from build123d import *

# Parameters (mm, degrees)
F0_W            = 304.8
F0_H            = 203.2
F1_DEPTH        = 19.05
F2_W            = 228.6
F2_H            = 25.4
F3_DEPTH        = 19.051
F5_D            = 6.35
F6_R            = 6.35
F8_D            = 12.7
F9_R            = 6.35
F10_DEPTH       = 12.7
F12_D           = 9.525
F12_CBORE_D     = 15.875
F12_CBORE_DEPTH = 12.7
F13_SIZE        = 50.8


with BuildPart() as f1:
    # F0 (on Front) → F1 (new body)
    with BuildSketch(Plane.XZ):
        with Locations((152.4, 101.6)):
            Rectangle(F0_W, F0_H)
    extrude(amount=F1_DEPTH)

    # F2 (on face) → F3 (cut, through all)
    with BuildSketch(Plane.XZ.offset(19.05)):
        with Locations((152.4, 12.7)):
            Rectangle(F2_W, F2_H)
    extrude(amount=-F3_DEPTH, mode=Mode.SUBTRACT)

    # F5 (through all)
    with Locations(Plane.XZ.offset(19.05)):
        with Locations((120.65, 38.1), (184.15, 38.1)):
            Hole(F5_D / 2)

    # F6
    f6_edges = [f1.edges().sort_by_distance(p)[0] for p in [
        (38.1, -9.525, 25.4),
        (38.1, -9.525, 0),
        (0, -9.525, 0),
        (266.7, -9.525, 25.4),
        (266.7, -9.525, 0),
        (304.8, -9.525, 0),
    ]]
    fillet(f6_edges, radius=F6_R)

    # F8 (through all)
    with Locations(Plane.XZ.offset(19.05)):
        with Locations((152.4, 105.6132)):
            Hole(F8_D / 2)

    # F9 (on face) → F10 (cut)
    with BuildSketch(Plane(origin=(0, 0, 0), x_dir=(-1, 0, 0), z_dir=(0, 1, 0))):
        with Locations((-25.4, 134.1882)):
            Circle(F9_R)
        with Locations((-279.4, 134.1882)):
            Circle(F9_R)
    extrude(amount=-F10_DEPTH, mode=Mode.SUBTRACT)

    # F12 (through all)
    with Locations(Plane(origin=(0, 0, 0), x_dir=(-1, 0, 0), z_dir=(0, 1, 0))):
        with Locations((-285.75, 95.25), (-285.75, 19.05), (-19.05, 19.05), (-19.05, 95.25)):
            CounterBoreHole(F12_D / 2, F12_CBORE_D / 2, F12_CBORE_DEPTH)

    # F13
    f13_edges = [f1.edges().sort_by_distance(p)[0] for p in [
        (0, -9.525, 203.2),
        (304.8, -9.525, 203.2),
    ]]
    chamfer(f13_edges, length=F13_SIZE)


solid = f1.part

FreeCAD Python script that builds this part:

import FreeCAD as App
import Part
import Sketcher
Q = App.Units.Quantity


def edges_at(feature, points):
    """Names of the edges that pass closest to the given points."""
    edges = feature.Shape.Edges
    near = lambda p: min(range(len(edges)), key=lambda i: edges[i].distToShape(Part.Vertex(*p))[0])
    return sorted({f"Edge{near(p) + 1}" for p in points})

doc = App.newDocument("Part")
body = doc.addObject("PartDesign::Body", "Body")

sketch1 = body.newObject("Sketcher::SketchObject", "Sketch")
sketch1.AttachmentSupport = (doc.getObject("XZ_Plane"), [""])
sketch1.MapMode = "FlatFace"
sketch1.addGeometry(Part.LineSegment(App.Vector(0, 203.2, 0), App.Vector(0, 0, 0)), False)
sketch1.addGeometry(Part.LineSegment(App.Vector(0, 0, 0), App.Vector(304.8, 0, 0)), False)
sketch1.addGeometry(Part.LineSegment(App.Vector(304.8, 0, 0), App.Vector(304.8, 203.2, 0)), False)
sketch1.addGeometry(Part.LineSegment(App.Vector(304.8, 203.2, 0), App.Vector(0, 203.2, 0)), False)
sketch1.addConstraint(Sketcher.Constraint("Coincident", 0, 2, 1, 1))
sketch1.addConstraint(Sketcher.Constraint("Coincident", 1, 2, 2, 1))
sketch1.addConstraint(Sketcher.Constraint("Coincident", 2, 2, 3, 1))
sketch1.addConstraint(Sketcher.Constraint("Coincident", 3, 2, 0, 1))
sketch1.addConstraint(Sketcher.Constraint("Vertical", 0))
sketch1.addConstraint(Sketcher.Constraint("Horizontal", 1))
sketch1.addConstraint(Sketcher.Constraint("Vertical", 2))
sketch1.addConstraint(Sketcher.Constraint("Horizontal", 3))
sketch1.addConstraint(Sketcher.Constraint("Coincident", 0, 2, -1, 1))
sketch1.addConstraint(Sketcher.Constraint("DistanceX", 1, 1, 1, 2, Q("12 in")))
sketch1.addConstraint(Sketcher.Constraint("DistanceY", 0, 2, 0, 1, Q("8 in")))
pad1 = body.newObject("PartDesign::Pad", "Pad")
pad1.Profile = sketch1
pad1.Length = Q("0.75 in")

sketch2 = body.newObject("Sketcher::SketchObject", "Sketch001")
sketch2.AttachmentSupport = (doc.getObject("XZ_Plane"), [""])
sketch2.MapMode = "FlatFace"
sketch2.AttachmentOffset = App.Placement(App.Vector(0, 0, 0.75 * 25.4), App.Rotation())
sketch2.addGeometry(Part.LineSegment(App.Vector(38.1, 25.4, 0), App.Vector(38.1, 0, 0)), False)
sketch2.addGeometry(Part.LineSegment(App.Vector(38.1, 0, 0), App.Vector(266.7, 0, 0)), False)
sketch2.addGeometry(Part.LineSegment(App.Vector(266.7, 0, 0), App.Vector(266.7, 25.4, 0)), False)
sketch2.addGeometry(Part.LineSegment(App.Vector(266.7, 25.4, 0), App.Vector(38.1, 25.4, 0)), False)
sketch2.addConstraint(Sketcher.Constraint("Coincident", 0, 2, 1, 1))
sketch2.addConstraint(Sketcher.Constraint("Coincident", 1, 2, 2, 1))
sketch2.addConstraint(Sketcher.Constraint("Coincident", 2, 2, 3, 1))
sketch2.addConstraint(Sketcher.Constraint("Coincident", 3, 2, 0, 1))
sketch2.addConstraint(Sketcher.Constraint("Vertical", 0))
sketch2.addConstraint(Sketcher.Constraint("Horizontal", 1))
sketch2.addConstraint(Sketcher.Constraint("Vertical", 2))
sketch2.addConstraint(Sketcher.Constraint("Horizontal", 3))
sketch2.addConstraint(Sketcher.Constraint("PointOnObject", 0, 2, -1))
sketch2.addConstraint(Sketcher.Constraint("DistanceX", 1, 1, 1, 2, Q("9 in")))
sketch2.addConstraint(Sketcher.Constraint("DistanceY", 0, 2, 0, 1, Q("1 in")))
sketch2.addConstraint(Sketcher.Constraint("DistanceX", -1, 1, 0, 2, Q("1.5 in")))
pocket1 = body.newObject("PartDesign::Pocket", "Pocket")
pocket1.Profile = sketch2
pocket1.Type = "ThroughAll"

sketch3 = body.newObject("Sketcher::SketchObject", "Sketch002")
sketch3.AttachmentSupport = (doc.getObject("XZ_Plane"), [""])
sketch3.MapMode = "FlatFace"
sketch3.AttachmentOffset = App.Placement(App.Vector(0, 0, 0.75 * 25.4), App.Rotation())
sketch3.addGeometry(Part.Circle(App.Vector(120.65, 38.1, 0), App.Vector(0, 0, 1), 3.175), False)
sketch3.addGeometry(Part.Circle(App.Vector(184.15, 38.1, 0), App.Vector(0, 0, 1), 3.175), False)
sketch3.addConstraint(Sketcher.Constraint("Equal", 0, 1))
sketch3.addConstraint(Sketcher.Constraint("Horizontal", 0, 3, 1, 3))
sketch3.addConstraint(Sketcher.Constraint("Diameter", 0, Q("0.25 in")))
sketch3.addConstraint(Sketcher.Constraint("DistanceY", -1, 1, 0, 3, Q("1.5 in")))
sketch3.addConstraint(Sketcher.Constraint("DistanceX", 0, 3, 1, 3, Q("2.5 in")))
sketch3.addConstraint(Sketcher.Constraint("DistanceX", -1, 1, 0, 3, Q("4.75 in")))
doc.recompute()
hole = body.newObject("PartDesign::Hole", "Hole")
hole.Profile = sketch3
hole.ThreadType = "None"
hole.Diameter = Q("0.25 in")
hole.DepthType = "ThroughAll"
doc.recompute()

fillet = body.newObject("PartDesign::Fillet", "Fillet")
fillet.Base = (hole, edges_at(hole, [
    (38.1, -9.525, 25.4),
    (38.1, -9.525, 0),
    (0, -9.525, 0),
    (266.7, -9.525, 25.4),
    (266.7, -9.525, 0),
    (304.8, -9.525, 0),
]))
fillet.Radius = Q("0.25 in")

sketch4 = body.newObject("Sketcher::SketchObject", "Sketch003")
sketch4.AttachmentSupport = (doc.getObject("XZ_Plane"), [""])
sketch4.MapMode = "FlatFace"
sketch4.AttachmentOffset = App.Placement(App.Vector(0, 0, 0.75 * 25.4), App.Rotation())
sketch4.addGeometry(Part.Circle(App.Vector(152.4, 105.6132, 0), App.Vector(0, 0, 1), 6.35), False)
sketch4.addConstraint(Sketcher.Constraint("Diameter", 0, Q("0.5 in")))
sketch4.addConstraint(Sketcher.Constraint("DistanceX", -1, 1, 0, 3, Q("6 in")))
sketch4.addConstraint(Sketcher.Constraint("DistanceY", -1, 1, 0, 3, Q("4.158 in")))
doc.recompute()
hole2 = body.newObject("PartDesign::Hole", "Hole001")
hole2.Profile = sketch4
hole2.ThreadType = "None"
hole2.Diameter = Q("0.5 in")
hole2.DepthType = "ThroughAll"

sketch5 = body.newObject("Sketcher::SketchObject", "Sketch004")
sketch5.AttachmentSupport = (doc.getObject("XZ_Plane"), [""])
sketch5.MapMode = "FlatFace"
sketch5.addGeometry(Part.Circle(App.Vector(25.4, 134.1882, 0), App.Vector(0, 0, 1), 6.35), False)
sketch5.addGeometry(Part.Circle(App.Vector(279.4, 134.1882, 0), App.Vector(0, 0, 1), 6.35), False)
sketch5.addConstraint(Sketcher.Constraint("Equal", 0, 1))
sketch5.addConstraint(Sketcher.Constraint("Horizontal", 0, 3, 1, 3))
sketch5.addConstraint(Sketcher.Constraint("Diameter", 0, Q("0.5 in")))
sketch5.addConstraint(Sketcher.Constraint("DistanceX", -1, 1, 0, 3, Q("1 in")))
sketch5.addConstraint(Sketcher.Constraint("DistanceX", -1, 1, 1, 3, Q("11 in")))
sketch5.addConstraint(Sketcher.Constraint("DistanceY", -1, 1, 0, 3, Q("5.283 in")))
pocket2 = body.newObject("PartDesign::Pocket", "Pocket001")
pocket2.Profile = sketch5
pocket2.Length = Q("0.5 in")
pocket2.Reversed = True

sketch6 = body.newObject("Sketcher::SketchObject", "Sketch005")
sketch6.AttachmentSupport = (doc.getObject("XZ_Plane"), [""])
sketch6.MapMode = "FlatFace"
sketch6.addGeometry(Part.Circle(App.Vector(285.75, 95.25, 0), App.Vector(0, 0, 1), 4.7625), False)
sketch6.addGeometry(Part.Circle(App.Vector(285.75, 19.05, 0), App.Vector(0, 0, 1), 4.7625), False)
sketch6.addGeometry(Part.Circle(App.Vector(19.05, 19.05, 0), App.Vector(0, 0, 1), 4.7625), False)
sketch6.addGeometry(Part.Circle(App.Vector(19.05, 95.25, 0), App.Vector(0, 0, 1), 4.7625), False)
sketch6.addConstraint(Sketcher.Constraint("Equal", 0, 1))
sketch6.addConstraint(Sketcher.Constraint("Equal", 1, 2))
sketch6.addConstraint(Sketcher.Constraint("Equal", 2, 3))
sketch6.addConstraint(Sketcher.Constraint("Horizontal", 1, 3, 2, 3))
sketch6.addConstraint(Sketcher.Constraint("Horizontal", 0, 3, 3, 3))
sketch6.addConstraint(Sketcher.Constraint("Vertical", 0, 3, 1, 3))
sketch6.addConstraint(Sketcher.Constraint("Vertical", 2, 3, 3, 3))
sketch6.addConstraint(Sketcher.Constraint("Diameter", 0, Q("0.375 in")))
sketch6.addConstraint(Sketcher.Constraint("DistanceY", 1, 3, 0, 3, Q("3 in")))
sketch6.addConstraint(Sketcher.Constraint("DistanceX", 2, 3, 1, 3, Q("10.5 in")))
sketch6.addConstraint(Sketcher.Constraint("DistanceX", -1, 1, 0, 3, Q("11.25 in")))
sketch6.addConstraint(Sketcher.Constraint("DistanceY", -1, 1, 0, 3, Q("3.75 in")))
doc.recompute()
hole3 = body.newObject("PartDesign::Hole", "Hole002")
hole3.Profile = sketch6
hole3.ThreadType = "None"
hole3.Diameter = Q("0.375 in")
hole3.DepthType = "ThroughAll"
hole3.HoleCutType = "Counterbore"
hole3.HoleCutDiameter = Q("0.625 in")
hole3.HoleCutDepth = Q("0.5 in")
hole3.Reversed = True
doc.recompute()

chamfer = body.newObject("PartDesign::Chamfer", "Chamfer")
chamfer.Base = (hole3, edges_at(hole3, [(0, -9.525, 203.2), (304.8, -9.525, 203.2)]))
chamfer.Size = Q("2 in")

doc.recompute()
